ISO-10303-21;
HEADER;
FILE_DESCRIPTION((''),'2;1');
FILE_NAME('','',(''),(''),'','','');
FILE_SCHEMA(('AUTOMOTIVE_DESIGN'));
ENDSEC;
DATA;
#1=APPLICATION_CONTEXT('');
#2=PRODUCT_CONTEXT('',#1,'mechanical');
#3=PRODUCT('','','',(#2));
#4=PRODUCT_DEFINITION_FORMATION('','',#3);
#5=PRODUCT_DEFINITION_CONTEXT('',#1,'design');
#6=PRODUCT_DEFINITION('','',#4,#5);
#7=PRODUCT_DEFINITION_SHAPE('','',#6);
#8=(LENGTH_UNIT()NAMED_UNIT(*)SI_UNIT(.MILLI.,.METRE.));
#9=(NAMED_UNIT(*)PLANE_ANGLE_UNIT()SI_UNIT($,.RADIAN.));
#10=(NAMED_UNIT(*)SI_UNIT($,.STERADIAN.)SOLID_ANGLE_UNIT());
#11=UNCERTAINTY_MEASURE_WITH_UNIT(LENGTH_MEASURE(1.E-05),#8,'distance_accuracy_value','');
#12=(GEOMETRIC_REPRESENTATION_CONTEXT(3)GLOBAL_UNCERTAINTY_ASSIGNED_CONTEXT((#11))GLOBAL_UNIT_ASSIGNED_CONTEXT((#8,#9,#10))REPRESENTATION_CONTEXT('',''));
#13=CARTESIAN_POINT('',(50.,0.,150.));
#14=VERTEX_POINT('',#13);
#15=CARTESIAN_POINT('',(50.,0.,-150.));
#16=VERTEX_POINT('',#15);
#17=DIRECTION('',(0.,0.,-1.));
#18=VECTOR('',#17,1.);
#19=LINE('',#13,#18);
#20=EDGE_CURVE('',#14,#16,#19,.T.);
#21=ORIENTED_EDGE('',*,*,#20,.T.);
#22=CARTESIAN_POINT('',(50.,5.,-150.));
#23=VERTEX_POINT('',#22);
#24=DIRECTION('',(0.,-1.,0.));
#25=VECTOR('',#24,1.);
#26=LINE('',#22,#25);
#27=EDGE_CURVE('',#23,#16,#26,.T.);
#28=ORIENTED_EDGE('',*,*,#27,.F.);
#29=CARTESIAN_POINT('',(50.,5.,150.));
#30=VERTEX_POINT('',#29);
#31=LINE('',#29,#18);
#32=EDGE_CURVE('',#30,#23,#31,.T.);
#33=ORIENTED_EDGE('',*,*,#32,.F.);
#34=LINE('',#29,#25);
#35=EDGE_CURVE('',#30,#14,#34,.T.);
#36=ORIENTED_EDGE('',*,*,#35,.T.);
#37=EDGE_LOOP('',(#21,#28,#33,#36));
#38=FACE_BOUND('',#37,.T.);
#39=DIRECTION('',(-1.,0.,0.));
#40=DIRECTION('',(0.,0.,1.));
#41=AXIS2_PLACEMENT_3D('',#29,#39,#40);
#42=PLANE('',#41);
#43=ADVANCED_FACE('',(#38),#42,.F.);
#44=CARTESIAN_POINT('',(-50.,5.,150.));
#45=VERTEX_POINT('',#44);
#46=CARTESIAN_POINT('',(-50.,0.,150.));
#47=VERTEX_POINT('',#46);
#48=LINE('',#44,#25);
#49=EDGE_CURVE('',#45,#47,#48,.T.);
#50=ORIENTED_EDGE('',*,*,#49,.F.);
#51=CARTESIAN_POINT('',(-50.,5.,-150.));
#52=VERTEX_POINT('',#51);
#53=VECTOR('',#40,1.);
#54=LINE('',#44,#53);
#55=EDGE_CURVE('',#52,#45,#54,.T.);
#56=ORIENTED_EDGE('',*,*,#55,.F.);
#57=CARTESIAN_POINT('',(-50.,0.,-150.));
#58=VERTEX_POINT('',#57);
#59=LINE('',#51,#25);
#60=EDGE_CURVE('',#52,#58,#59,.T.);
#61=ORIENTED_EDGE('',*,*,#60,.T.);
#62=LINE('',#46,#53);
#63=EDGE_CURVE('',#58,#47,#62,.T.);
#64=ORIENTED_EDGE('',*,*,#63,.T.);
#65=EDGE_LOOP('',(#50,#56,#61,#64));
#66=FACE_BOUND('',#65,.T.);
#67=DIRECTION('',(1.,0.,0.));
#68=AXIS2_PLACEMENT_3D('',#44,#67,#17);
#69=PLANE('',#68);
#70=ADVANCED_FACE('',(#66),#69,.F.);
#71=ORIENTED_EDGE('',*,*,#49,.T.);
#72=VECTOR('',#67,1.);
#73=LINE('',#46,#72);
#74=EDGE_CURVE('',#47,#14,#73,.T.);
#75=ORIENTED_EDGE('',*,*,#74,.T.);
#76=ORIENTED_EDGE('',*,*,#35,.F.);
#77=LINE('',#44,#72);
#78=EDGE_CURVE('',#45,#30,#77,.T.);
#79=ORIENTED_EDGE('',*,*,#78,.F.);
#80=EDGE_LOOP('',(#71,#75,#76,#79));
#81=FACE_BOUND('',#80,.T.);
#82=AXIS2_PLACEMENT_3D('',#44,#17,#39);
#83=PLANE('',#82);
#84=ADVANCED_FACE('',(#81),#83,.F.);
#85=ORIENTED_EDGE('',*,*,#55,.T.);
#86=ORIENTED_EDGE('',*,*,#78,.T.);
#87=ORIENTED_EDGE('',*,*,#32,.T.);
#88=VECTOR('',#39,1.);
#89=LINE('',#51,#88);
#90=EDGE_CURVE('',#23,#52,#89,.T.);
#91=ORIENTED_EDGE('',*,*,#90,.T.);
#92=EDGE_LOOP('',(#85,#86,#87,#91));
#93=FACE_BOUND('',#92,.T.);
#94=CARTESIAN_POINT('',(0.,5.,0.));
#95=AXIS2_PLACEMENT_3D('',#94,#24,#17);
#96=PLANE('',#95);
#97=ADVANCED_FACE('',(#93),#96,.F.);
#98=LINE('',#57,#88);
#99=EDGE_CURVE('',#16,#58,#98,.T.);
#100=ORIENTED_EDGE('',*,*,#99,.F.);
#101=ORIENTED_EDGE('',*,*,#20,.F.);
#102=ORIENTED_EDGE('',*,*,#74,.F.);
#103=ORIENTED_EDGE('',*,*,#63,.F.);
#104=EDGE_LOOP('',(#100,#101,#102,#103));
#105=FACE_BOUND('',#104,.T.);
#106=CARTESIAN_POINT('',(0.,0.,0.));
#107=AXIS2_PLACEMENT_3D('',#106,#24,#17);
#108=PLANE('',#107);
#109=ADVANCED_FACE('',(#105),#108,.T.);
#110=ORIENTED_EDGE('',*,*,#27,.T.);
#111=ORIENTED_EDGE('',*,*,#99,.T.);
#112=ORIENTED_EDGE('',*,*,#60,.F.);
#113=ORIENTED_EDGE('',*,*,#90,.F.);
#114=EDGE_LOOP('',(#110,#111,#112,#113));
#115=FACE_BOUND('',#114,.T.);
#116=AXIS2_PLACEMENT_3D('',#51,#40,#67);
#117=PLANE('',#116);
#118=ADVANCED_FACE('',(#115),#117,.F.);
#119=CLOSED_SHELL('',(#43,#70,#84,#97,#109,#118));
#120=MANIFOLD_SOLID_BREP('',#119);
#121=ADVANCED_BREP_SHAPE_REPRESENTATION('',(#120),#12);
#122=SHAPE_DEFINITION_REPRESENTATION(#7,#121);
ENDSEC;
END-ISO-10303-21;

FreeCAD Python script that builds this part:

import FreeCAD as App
import Part
import Sketcher

doc = App.newDocument("Part")
body = doc.addObject("PartDesign::Body", "Body")

# Sketch on XZ plane
sketch1 = body.newObject("Sketcher::SketchObject", "Sketch")
sketch1.AttachmentSupport = (doc.getObject("XZ_Plane"), [""])
sketch1.MapMode = "FlatFace"
sketch1.addGeometry(Part.LineSegment(App.Vector(-50, -150, 0), App.Vector(-50, 150, 0)), False)
sketch1.addGeometry(Part.LineSegment(App.Vector(-50, 150, 0), App.Vector(50, 150, 0)), False)
sketch1.addGeometry(Part.LineSegment(App.Vector(50, 150, 0), App.Vector(50, -150, 0)), False)
sketch1.addGeometry(Part.LineSegment(App.Vector(50, -150, 0), App.Vector(-50, -150, 0)), False)
sketch1.addConstraint(Sketcher.Constraint("Coincident", 0, 2, 1, 1))
sketch1.addConstraint(Sketcher.Constraint("Coincident", 1, 2, 2, 1))
sketch1.addConstraint(Sketcher.Constraint("Coincident", 2, 2, 3, 1))
sketch1.addConstraint(Sketcher.Constraint("Coincident", 3, 2, 0, 1))
sketch1.addConstraint(Sketcher.Constraint("Vertical", 0))
sketch1.addConstraint(Sketcher.Constraint("Horizontal", 1))
sketch1.addConstraint(Sketcher.Constraint("Vertical", 2))
sketch1.addConstraint(Sketcher.Constraint("Horizontal", 3))
sketch1.addConstraint(Sketcher.Constraint("Symmetric", 0, 2, 2, 2, -1, 1))
sketch1.addConstraint(Sketcher.Constraint("DistanceX", 1, 1, 1, 2, 100.0))
sketch1.addConstraint(Sketcher.Constraint("DistanceY", 0, 1, 0, 2, 300.0))
pad1 = body.newObject("PartDesign::Pad", "Pad")
pad1.Profile = sketch1
pad1.Length = 5
pad1.Reversed = True

doc.recompute()
